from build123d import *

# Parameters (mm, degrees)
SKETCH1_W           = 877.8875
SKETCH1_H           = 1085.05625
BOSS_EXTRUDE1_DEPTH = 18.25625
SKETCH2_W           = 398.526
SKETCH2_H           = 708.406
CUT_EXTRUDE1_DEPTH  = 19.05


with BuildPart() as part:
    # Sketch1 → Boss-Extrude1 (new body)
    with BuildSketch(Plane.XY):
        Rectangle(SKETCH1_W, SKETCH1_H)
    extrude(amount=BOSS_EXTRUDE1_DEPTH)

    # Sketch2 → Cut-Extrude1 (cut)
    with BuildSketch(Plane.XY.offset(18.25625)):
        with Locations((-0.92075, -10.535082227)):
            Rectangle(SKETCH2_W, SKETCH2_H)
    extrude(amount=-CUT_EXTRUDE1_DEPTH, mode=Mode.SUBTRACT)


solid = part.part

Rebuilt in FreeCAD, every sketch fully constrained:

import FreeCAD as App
import Part
import Sketcher

V = App.Vector
Q = App.Units.Quantity

doc = App.newDocument("Part")
body = doc.addObject("PartDesign::Body", "Body")

# Sketch on XY plane
sketch1 = body.newObject("Sketcher::SketchObject", "Sketch")
sketch1.AttachmentSupport = (doc.getObject("XY_Plane"), [""])
sketch1.MapMode = "FlatFace"
sketch1.addGeometry([
    Part.LineSegment(V(-439, 543, 0), V(-439, -543, 0)),
    Part.LineSegment(V(-439, -543, 0), V(439, -543, 0)),
    Part.LineSegment(V(439, -543, 0), V(439, 543, 0)),
    Part.LineSegment(V(439, 543, 0), V(-439, 543, 0)),
], False)
sketch1.addConstraint([
    Sketcher.Constraint("Coincident", 0, 2, 1, 1),
    Sketcher.Constraint("Coincident", 1, 2, 2, 1),
    Sketcher.Constraint("Coincident", 2, 2, 3, 1),
    Sketcher.Constraint("Coincident", 3, 2, 0, 1),
    Sketcher.Constraint("Vertical", 0),
    Sketcher.Constraint("Horizontal", 1),
    Sketcher.Constraint("Vertical", 2),
    Sketcher.Constraint("Horizontal", 3),
    Sketcher.Constraint("Symmetric", 0, 2, 2, 2, -1, 1),
    Sketcher.Constraint("DistanceX", 1, 1, 1, 2, Q("34.5625 in")),
    Sketcher.Constraint("DistanceY", 0, 2, 0, 1, Q("42.71875 in")),
])
pad1 = body.newObject("PartDesign::Pad", "Pad")
pad1.Profile = sketch1
pad1.Length = Q("0.71875 in")

# Sketch on XY plane
sketch2 = body.newObject("Sketcher::SketchObject", "Sketch001")
sketch2.AttachmentSupport = (doc.getObject("XY_Plane"), [""])
sketch2.MapMode = "FlatFace"
sketch2.AttachmentOffset = App.Placement(V(0, 0, 0.71875 * 25.4), App.Rotation())
sketch2.addGeometry([
    Part.LineSegment(V(-200, 344, 0), V(-200, -365, 0)),
    Part.LineSegment(V(-200, -365, 0), V(198, -365, 0)),
    Part.LineSegment(V(198, -365, 0), V(198, 344, 0)),
    Part.LineSegment(V(198, 344, 0), V(-200, 344, 0)),
], False)
sketch2.addConstraint([
    Sketcher.Constraint("Coincident", 0, 2, 1, 1),
    Sketcher.Constraint("Coincident", 1, 2, 2, 1),
    Sketcher.Constraint("Coincident", 2, 2, 3, 1),
    Sketcher.Constraint("Coincident", 3, 2, 0, 1),
    Sketcher.Constraint("Vertical", 0),
    Sketcher.Constraint("Horizontal", 1),
    Sketcher.Constraint("Vertical", 2),
    Sketcher.Constraint("Horizontal", 3),
    Sketcher.Constraint("DistanceX", 1, 1, 1, 2, Q("15.69 in")),
    Sketcher.Constraint("DistanceY", 0, 2, 0, 1, Q("27.89 in")),
    Sketcher.Constraint("DistanceX", 0, 2, -1, 1, Q("200.18375 mm")),
    Sketcher.Constraint("DistanceY", 0, 2, -1, 1, Q("364.738082 mm")),
])
pocket1 = body.newObject("PartDesign::Pocket", "Pocket")
pocket1.Profile = sketch2
pocket1.Length = Q("0.75 in")

doc.recompute()
